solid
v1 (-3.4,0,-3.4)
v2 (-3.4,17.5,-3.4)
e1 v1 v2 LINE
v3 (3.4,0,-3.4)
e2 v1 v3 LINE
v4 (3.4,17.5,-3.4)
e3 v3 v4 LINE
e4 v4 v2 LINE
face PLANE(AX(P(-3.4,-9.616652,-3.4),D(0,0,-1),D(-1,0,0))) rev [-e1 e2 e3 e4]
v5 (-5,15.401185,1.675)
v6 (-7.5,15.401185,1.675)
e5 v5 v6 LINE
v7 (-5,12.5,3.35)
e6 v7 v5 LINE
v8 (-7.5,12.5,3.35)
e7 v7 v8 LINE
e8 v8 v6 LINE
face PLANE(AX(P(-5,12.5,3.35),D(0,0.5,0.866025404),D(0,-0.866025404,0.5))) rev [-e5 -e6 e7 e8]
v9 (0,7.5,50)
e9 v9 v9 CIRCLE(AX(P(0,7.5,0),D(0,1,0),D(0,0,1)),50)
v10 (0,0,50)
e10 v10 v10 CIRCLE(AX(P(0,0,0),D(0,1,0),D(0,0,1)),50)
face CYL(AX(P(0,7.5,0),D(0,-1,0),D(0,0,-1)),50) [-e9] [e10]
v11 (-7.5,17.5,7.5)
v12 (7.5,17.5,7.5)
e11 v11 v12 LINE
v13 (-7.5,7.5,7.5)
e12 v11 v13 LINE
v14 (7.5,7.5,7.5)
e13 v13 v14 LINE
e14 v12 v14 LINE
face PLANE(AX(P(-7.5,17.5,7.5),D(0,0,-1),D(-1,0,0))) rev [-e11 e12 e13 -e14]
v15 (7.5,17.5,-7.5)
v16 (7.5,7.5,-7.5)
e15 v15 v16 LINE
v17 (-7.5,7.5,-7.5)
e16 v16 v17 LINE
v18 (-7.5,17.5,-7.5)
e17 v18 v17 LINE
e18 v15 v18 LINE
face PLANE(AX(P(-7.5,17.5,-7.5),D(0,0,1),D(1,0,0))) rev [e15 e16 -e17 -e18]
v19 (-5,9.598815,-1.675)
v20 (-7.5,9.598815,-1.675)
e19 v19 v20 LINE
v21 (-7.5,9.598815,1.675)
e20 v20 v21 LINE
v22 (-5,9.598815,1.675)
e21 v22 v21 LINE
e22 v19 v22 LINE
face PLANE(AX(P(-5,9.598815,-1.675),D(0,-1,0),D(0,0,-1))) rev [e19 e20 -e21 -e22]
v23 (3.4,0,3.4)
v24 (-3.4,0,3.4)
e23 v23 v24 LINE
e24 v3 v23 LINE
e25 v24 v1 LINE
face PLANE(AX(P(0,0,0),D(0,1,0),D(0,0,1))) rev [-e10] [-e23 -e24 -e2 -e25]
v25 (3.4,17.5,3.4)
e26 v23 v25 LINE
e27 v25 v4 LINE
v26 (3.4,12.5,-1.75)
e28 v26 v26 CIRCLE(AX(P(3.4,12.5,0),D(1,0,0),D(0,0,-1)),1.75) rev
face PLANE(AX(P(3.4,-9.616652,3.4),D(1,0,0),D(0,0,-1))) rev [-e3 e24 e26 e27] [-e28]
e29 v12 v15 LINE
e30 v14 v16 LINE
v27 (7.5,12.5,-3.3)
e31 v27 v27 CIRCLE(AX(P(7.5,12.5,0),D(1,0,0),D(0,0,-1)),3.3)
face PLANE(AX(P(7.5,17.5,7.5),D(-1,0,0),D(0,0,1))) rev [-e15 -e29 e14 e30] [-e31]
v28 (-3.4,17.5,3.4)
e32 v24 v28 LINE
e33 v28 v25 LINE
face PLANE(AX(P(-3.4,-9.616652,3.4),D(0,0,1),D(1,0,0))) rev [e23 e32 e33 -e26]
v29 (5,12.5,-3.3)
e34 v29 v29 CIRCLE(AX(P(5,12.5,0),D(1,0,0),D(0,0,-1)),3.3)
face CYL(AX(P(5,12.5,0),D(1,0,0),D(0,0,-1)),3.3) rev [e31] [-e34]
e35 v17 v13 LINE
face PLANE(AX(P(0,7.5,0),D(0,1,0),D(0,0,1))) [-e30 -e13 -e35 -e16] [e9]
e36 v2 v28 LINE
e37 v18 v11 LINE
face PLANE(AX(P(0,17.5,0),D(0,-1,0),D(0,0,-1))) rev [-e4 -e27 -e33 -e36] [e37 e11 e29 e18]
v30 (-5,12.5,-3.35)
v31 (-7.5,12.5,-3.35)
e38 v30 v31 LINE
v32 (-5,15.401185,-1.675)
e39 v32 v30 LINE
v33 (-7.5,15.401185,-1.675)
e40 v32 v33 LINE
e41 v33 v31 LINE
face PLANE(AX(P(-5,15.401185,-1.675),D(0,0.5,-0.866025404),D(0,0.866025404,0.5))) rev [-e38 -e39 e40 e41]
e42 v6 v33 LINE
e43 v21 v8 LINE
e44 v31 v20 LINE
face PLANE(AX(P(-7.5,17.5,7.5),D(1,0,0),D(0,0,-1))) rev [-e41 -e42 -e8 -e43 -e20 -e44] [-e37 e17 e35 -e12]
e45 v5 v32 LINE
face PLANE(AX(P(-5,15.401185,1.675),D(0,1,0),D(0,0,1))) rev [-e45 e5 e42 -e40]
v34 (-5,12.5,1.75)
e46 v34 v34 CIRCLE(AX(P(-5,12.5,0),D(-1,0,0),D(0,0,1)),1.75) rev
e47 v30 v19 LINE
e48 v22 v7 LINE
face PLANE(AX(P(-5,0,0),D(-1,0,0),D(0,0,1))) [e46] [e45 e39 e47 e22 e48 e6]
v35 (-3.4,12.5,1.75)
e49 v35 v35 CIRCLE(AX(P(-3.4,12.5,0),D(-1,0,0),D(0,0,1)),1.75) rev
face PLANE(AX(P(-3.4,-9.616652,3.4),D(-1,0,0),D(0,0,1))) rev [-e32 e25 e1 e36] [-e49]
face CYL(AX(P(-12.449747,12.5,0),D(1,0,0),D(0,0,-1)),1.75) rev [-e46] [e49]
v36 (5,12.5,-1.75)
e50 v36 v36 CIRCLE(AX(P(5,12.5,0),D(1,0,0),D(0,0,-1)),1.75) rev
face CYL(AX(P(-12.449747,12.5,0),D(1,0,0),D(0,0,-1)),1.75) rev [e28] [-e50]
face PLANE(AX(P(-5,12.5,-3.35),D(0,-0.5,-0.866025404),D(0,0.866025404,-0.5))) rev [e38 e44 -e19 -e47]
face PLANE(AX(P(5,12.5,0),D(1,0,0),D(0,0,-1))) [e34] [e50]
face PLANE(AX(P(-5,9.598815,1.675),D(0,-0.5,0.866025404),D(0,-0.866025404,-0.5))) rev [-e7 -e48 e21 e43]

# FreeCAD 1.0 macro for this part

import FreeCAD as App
import Part
import Sketcher
Q = App.Units.Quantity

doc = App.newDocument("Part")
params = doc.addObject("Spreadsheet::Sheet", "Params")
for row, (alias, value) in enumerate([
    ("sketch1_diameter", "100 mm"),
    ("pad1_length", "7.5 mm"),
    ("sketch2_width", "15 mm"),
    ("pad2_length", "10 mm"),
    ("sketch3_diameter", "3.5 mm"),
    ("pocket1_length", "15 mm"),
    ("sketch4_diameter", "6.6 mm"),
    ("pocket2_length", "2.5 mm"),
    ("sketch5_height", "3.35 mm"),
    ("pocket3_length", "2.5 mm"),
    ("sketch6_width", "6.8 mm"),
    ("pocket4_length", "17.5 mm"),
], start=1):
    params.set(f"A{row}", alias)
    params.set(f"B{row}", "=" + value)
    params.setAlias(f"B{row}", alias)

body = doc.addObject("PartDesign::Body", "Body")

# Sketch on XZ plane
sketch1 = doc.addObject("Sketcher::SketchObject", "Sketch")
body.addObject(sketch1)
sketch1.AttachmentSupport = (doc.XZ_Plane, [""])
sketch1.MapMode = "FlatFace"
sketch1.addGeometry(Part.Circle(App.Vector(0, 0, 0), App.Vector(0, 0, 1), 50), False)
sketch1.addConstraint(Sketcher.Constraint("Coincident", 0, 3, -1, 1))
sketch1.addConstraint(Sketcher.Constraint("Diameter", 0, 100.0))
sketch1.setExpression("Constraints[1]", "Params.sketch1_diameter")
pad1 = doc.addObject("PartDesign::Pad", "Pad")
body.addObject(pad1)
pad1.Profile = sketch1
pad1.setExpression("Length", "Params.pad1_length")
pad1.Reversed = True

# Sketch on XZ plane
sketch2 = doc.addObject("Sketcher::SketchObject", "Sketch001")
body.addObject(sketch2)
sketch2.AttachmentSupport = (doc.XZ_Plane, [""])
sketch2.MapMode = "FlatFace"
sketch2.AttachmentOffset = App.Placement(App.Vector(0, 0, -7.5), App.Rotation())
sketch2.addGeometry(Part.LineSegment(App.Vector(-8, -8, 0), App.Vector(-8, 8, 0)), False)
sketch2.addGeometry(Part.LineSegment(App.Vector(-8, 8, 0), App.Vector(8, 8, 0)), False)
sketch2.addGeometry(Part.LineSegment(App.Vector(8, 8, 0), App.Vector(8, -8, 0)), False)
sketch2.addGeometry(Part.LineSegment(App.Vector(8, -8, 0), App.Vector(-8, -8, 0)), False)
sketch2.addConstraint(Sketcher.Constraint("Coincident", 0, 2, 1, 1))
sketch2.addConstraint(Sketcher.Constraint("Coincident", 1, 2, 2, 1))
sketch2.addConstraint(Sketcher.Constraint("Coincident", 2, 2, 3, 1))
sketch2.addConstraint(Sketcher.Constraint("Coincident", 3, 2, 0, 1))
sketch2.addConstraint(Sketcher.Constraint("Vertical", 0))
sketch2.addConstraint(Sketcher.Constraint("Horizontal", 1))
sketch2.addConstraint(Sketcher.Constraint("Vertical", 2))
sketch2.addConstraint(Sketcher.Constraint("Horizontal", 3))
sketch2.addConstraint(Sketcher.Constraint("Symmetric", 0, 2, 2, 2, -1, 1))
sketch2.addConstraint(Sketcher.Constraint("Equal", 3, 0))
sketch2.addConstraint(Sketcher.Constraint("DistanceX", 1, 1, 1, 2, 15.0))
sketch2.setExpression("Constraints[10]", "Params.sketch2_width")
pad2 = doc.addObject("PartDesign::Pad", "Pad001")
body.addObject(pad2)
pad2.Profile = sketch2
pad2.setExpression("Length", "Params.pad2_length")
pad2.Reversed = True

# Sketch on YZ plane
sketch3 = doc.addObject("Sketcher::SketchObject", "Sketch002")
body.addObject(sketch3)
sketch3.AttachmentSupport = (doc.YZ_Plane, [""])
sketch3.MapMode = "FlatFace"
sketch3.AttachmentOffset = App.Placement(App.Vector(0, 0, 7.5), App.Rotation())
sketch3.addGeometry(Part.Circle(App.Vector(12.5, 0, 0), App.Vector(0, 0, 1), 1.8), False)
sketch3.addConstraint(Sketcher.Constraint("PointOnObject", 0, 3, -1))
sketch3.addConstraint(Sketcher.Constraint("Diameter", 0, 3.5))
sketch3.addConstraint(Sketcher.Constraint("DistanceX", -1, 1, 0, 3, 12.5))
sketch3.setExpression("Constraints[1]", "Params.sketch3_diameter")
pocket1 = doc.addObject("PartDesign::Pocket", "Pocket")
body.addObject(pocket1)
pocket1.Profile = sketch3
pocket1.setExpression("Length", "Params.pocket1_length")

# Sketch on YZ plane
sketch4 = doc.addObject("Sketcher::SketchObject", "Sketch003")
body.addObject(sketch4)
sketch4.AttachmentSupport = (doc.YZ_Plane, [""])
sketch4.MapMode = "FlatFace"
sketch4.AttachmentOffset = App.Placement(App.Vector(0, 0, 7.5), App.Rotation())
sketch4.addGeometry(Part.Circle(App.Vector(12.5, 0, 0), App.Vector(0, 0, 1), 3.3), False)
sketch4.addConstraint(Sketcher.Constraint("PointOnObject", 0, 3, -1))
sketch4.addConstraint(Sketcher.Constraint("Diameter", 0, 6.6))
sketch4.addConstraint(Sketcher.Constraint("DistanceX", -1, 1, 0, 3, 12.5))
sketch4.setExpression("Constraints[1]", "Params.sketch4_diameter")
pocket2 = doc.addObject("PartDesign::Pocket", "Pocket001")
body.addObject(pocket2)
pocket2.Profile = sketch4
pocket2.setExpression("Length", "Params.pocket2_length")

# Sketch on YZ plane
sketch5 = doc.addObject("Sketcher::SketchObject", "Sketch004")
body.addObject(sketch5)
sketch5.AttachmentSupport = (doc.YZ_Plane, [""])
sketch5.MapMode = "FlatFace"
sketch5.AttachmentOffset = App.Placement(App.Vector(0, 0, -7.5), App.Rotation())
sketch5.addGeometry(Part.LineSegment(App.Vector(12.5, -3.4, 0), App.Vector(9.6, -1.7, 0)), False)
sketch5.addGeometry(Part.LineSegment(App.Vector(9.6, -1.7, 0), App.Vector(9.6, 1.7, 0)), False)
sketch5.addGeometry(Part.LineSegment(App.Vector(9.6, 1.7, 0), App.Vector(12.5, 3.4, 0)), False)
sketch5.addGeometry(Part.LineSegment(App.Vector(12.5, 3.4, 0), App.Vector(15.4, 1.7, 0)), False)
sketch5.addGeometry(Part.LineSegment(App.Vector(15.4, 1.7, 0), App.Vector(15.4, -1.7, 0)), False)
sketch5.addGeometry(Part.LineSegment(App.Vector(15.4, -1.7, 0), App.Vector(12.5, -3.4, 0)), False)
sketch5.addConstraint(Sketcher.Constraint("Coincident", 0, 2, 1, 1))
sketch5.addConstraint(Sketcher.Constraint("Coincident", 1, 2, 2, 1))
sketch5.addConstraint(Sketcher.Constraint("Coincident", 2, 2, 3, 1))
sketch5.addConstraint(Sketcher.Constraint("Coincident", 3, 2, 4, 1))
sketch5.addConstraint(Sketcher.Constraint("Coincident", 4, 2, 5, 1))
sketch5.addConstraint(Sketcher.Constraint("Coincident", 5, 2, 0, 1))
sketch5.addConstraint(Sketcher.Constraint("Vertical", 1))
sketch5.addConstraint(Sketcher.Constraint("Vertical", 4))
sketch5.addConstraint(Sketcher.Constraint("Symmetric", 2, 2, 5, 2, -1))
sketch5.addConstraint(Sketcher.Constraint("Parallel", 0, 3))
sketch5.addConstraint(Sketcher.Constraint("Parallel", 2, 5))
sketch5.addConstraint(Sketcher.Constraint("Horizontal", 1, 2, 3, 2))
sketch5.addConstraint(Sketcher.Constraint("Horizontal", 0, 2, 4, 2))
sketch5.addConstraint(Sketcher.Constraint("Angle", 0, Q("150 deg")))
sketch5.addConstraint(Sketcher.Constraint("DistanceY", 1, 1, 1, 2, 3.35))
sketch5.addConstraint(Sketcher.Constraint("DistanceX", -1, 1, 2, 2, 12.5))
sketch5.addConstraint(Sketcher.Constraint("DistanceY", 5, 2, 2, 2, 6.7))
sketch5.setExpression("Constraints[14]", "Params.sketch5_height")
pocket3 = doc.addObject("PartDesign::Pocket", "Pocket002")
body.addObject(pocket3)
pocket3.Profile = sketch5
pocket3.setExpression("Length", "Params.pocket3_length")
pocket3.Reversed = True

# Sketch on XZ plane
sketch6 = doc.addObject("Sketcher::SketchObject", "Sketch005")
body.addObject(sketch6)
sketch6.AttachmentSupport = (doc.XZ_Plane, [""])
sketch6.MapMode = "FlatFace"
sketch6.AttachmentOffset = App.Placement(App.Vector(0, 0, -17.5), App.Rotation())
sketch6.addGeometry(Part.LineSegment(App.Vector(-3, -3, 0), App.Vector(-3, 3, 0)), False)
sketch6.addGeometry(Part.LineSegment(App.Vector(-3, 3, 0), App.Vector(3, 3, 0)), False)
sketch6.addGeometry(Part.LineSegment(App.Vector(3, 3, 0), App.Vector(3, -3, 0)), False)
sketch6.addGeometry(Part.LineSegment(App.Vector(3, -3, 0), App.Vector(-3, -3, 0)), False)
sketch6.addConstraint(Sketcher.Constraint("Coincident", 0, 2, 1, 1))
sketch6.addConstraint(Sketcher.Constraint("Coincident", 1, 2, 2, 1))
sketch6.addConstraint(Sketcher.Constraint("Coincident", 2, 2, 3, 1))
sketch6.addConstraint(Sketcher.Constraint("Coincident", 3, 2, 0, 1))
sketch6.addConstraint(Sketcher.Constraint("Vertical", 0))
sketch6.addConstraint(Sketcher.Constraint("Horizontal", 1))
sketch6.addConstraint(Sketcher.Constraint("Vertical", 2))
sketch6.addConstraint(Sketcher.Constraint("Horizontal", 3))
sketch6.addConstraint(Sketcher.Constraint("Symmetric", 0, 2, 2, 2, -1, 1))
sketch6.addConstraint(Sketcher.Constraint("Equal", 3, 0))
sketch6.addConstraint(Sketcher.Constraint("DistanceX", 1, 1, 1, 2, 6.8))
sketch6.setExpression("Constraints[10]", "Params.sketch6_width")
pocket4 = doc.addObject("PartDesign::Pocket", "Pocket003")
body.addObject(pocket4)
pocket4.Profile = sketch6
pocket4.setExpression("Length", "Params.pocket4_length")
pocket4.Reversed = True

doc.recompute()
